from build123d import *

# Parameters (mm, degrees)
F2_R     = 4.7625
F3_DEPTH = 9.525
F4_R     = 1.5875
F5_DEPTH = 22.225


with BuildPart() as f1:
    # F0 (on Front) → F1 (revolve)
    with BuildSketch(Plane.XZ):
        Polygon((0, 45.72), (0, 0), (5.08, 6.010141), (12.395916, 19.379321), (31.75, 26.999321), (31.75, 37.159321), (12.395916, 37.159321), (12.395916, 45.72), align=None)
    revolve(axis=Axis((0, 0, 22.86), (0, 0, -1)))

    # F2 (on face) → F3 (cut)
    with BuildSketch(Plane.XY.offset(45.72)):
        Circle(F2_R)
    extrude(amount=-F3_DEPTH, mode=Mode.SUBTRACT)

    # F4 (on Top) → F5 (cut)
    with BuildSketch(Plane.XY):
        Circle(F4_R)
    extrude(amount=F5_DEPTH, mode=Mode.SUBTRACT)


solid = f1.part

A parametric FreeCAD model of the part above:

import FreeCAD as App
import Part
import Sketcher

V = App.Vector
Q = App.Units.Quantity


def add_polygon(sketch, points):
    """Adds a closed chain of lines whose ends are joined by coincident constraints."""
    first, n = sketch.GeometryCount, len(points)
    for a, b in zip(points, points[1:] + points[:1]):
        sketch.addGeometry(Part.LineSegment(App.Vector(*a, 0), App.Vector(*b, 0)), False)
    for i in range(n):
        sketch.addConstraint(Sketcher.Constraint("Coincident", first + i, 2, first + (i + 1) % n, 1))

doc = App.newDocument("Part")
body = doc.addObject("PartDesign::Body", "Body")

# Sketch on XZ plane
sketch1 = body.newObject("Sketcher::SketchObject", "Sketch")
sketch1.AttachmentSupport = (doc.getObject("XZ_Plane"), [""])
sketch1.MapMode = "FlatFace"
add_polygon(sketch1, [(0, 46), (0, 0), (5, 6), (12, 19), (32, 27), (32, 37), (12, 37), (12, 46)])  # lines 0-7
sketch1.addConstraint(Sketcher.Constraint("Vertical", 0))
sketch1.addConstraint(Sketcher.Constraint("Vertical", 4))
sketch1.addConstraint(Sketcher.Constraint("Horizontal", 5))
sketch1.addConstraint(Sketcher.Constraint("Vertical", 6))
sketch1.addConstraint(Sketcher.Constraint("Horizontal", 7))
sketch1.addConstraint(Sketcher.Constraint("Coincident", 0, 2, -1, 1))
sketch1.addConstraint(Sketcher.Constraint("Vertical", 2, 2, 5, 2))
sketch1.addConstraint(Sketcher.Constraint("DistanceY", 0, 2, 0, 1, Q("1.8 in")))
sketch1.addConstraint(Sketcher.Constraint("DistanceY", 4, 1, 4, 2, Q("0.4 in")))
sketch1.addConstraint(Sketcher.Constraint("Distance", 2, Q("0.6 in")))
sketch1.addConstraint(Sketcher.Constraint("DistanceX", -1, 1, 1, 2, Q("0.2 in")))
sketch1.addConstraint(Sketcher.Constraint("DistanceY", 2, 2, 3, 2, Q("0.3 in")))
sketch1.addConstraint(Sketcher.Constraint("DistanceX", -1, 1, 3, 2, Q("1.25 in")))
sketch1.addConstraint(Sketcher.Constraint("DistanceY", 6, 1, 6, 2, 8.560679))
sketch1.addConstraint(Sketcher.Constraint("Distance", 3, 20.800119))
revolution = body.newObject("PartDesign::Revolution", "Revolution")
revolution.Profile = sketch1
revolution.ReferenceAxis = (sketch1, ["V_Axis"])
revolution.Angle = 360

# Sketch on XY plane
sketch2 = body.newObject("Sketcher::SketchObject", "Sketch001")
sketch2.AttachmentSupport = (doc.getObject("XY_Plane"), [""])
sketch2.MapMode = "FlatFace"
sketch2.AttachmentOffset = App.Placement(V(0, 0, 1.8 * 25.4), App.Rotation())
sketch2.addGeometry(Part.Circle(V(0, 0, 0), V(0, 0, 1), 4.8), False)
sketch2.addConstraint(Sketcher.Constraint("Coincident", 0, 3, -1, 1))
sketch2.addConstraint(Sketcher.Constraint("Diameter", 0, Q("0.375 in")))
pocket1 = body.newObject("PartDesign::Pocket", "Pocket")
pocket1.Profile = sketch2
pocket1.Length = Q("0.375 in")

# Sketch on XY plane
sketch3 = body.newObject("Sketcher::SketchObject", "Sketch002")
sketch3.AttachmentSupport = (doc.getObject("XY_Plane"), [""])
sketch3.MapMode = "FlatFace"
sketch3.addGeometry(Part.Circle(V(0, 0, 0), V(0, 0, 1), 1.6), False)
sketch3.addConstraint(Sketcher.Constraint("Coincident", 0, 3, -1, 1))
sketch3.addConstraint(Sketcher.Constraint("Diameter", 0, Q("0.125 in")))
pocket2 = body.newObject("PartDesign::Pocket", "Pocket001")
pocket2.Profile = sketch3
pocket2.Length = Q("0.875 in")
pocket2.Reversed = True

doc.recompute()
